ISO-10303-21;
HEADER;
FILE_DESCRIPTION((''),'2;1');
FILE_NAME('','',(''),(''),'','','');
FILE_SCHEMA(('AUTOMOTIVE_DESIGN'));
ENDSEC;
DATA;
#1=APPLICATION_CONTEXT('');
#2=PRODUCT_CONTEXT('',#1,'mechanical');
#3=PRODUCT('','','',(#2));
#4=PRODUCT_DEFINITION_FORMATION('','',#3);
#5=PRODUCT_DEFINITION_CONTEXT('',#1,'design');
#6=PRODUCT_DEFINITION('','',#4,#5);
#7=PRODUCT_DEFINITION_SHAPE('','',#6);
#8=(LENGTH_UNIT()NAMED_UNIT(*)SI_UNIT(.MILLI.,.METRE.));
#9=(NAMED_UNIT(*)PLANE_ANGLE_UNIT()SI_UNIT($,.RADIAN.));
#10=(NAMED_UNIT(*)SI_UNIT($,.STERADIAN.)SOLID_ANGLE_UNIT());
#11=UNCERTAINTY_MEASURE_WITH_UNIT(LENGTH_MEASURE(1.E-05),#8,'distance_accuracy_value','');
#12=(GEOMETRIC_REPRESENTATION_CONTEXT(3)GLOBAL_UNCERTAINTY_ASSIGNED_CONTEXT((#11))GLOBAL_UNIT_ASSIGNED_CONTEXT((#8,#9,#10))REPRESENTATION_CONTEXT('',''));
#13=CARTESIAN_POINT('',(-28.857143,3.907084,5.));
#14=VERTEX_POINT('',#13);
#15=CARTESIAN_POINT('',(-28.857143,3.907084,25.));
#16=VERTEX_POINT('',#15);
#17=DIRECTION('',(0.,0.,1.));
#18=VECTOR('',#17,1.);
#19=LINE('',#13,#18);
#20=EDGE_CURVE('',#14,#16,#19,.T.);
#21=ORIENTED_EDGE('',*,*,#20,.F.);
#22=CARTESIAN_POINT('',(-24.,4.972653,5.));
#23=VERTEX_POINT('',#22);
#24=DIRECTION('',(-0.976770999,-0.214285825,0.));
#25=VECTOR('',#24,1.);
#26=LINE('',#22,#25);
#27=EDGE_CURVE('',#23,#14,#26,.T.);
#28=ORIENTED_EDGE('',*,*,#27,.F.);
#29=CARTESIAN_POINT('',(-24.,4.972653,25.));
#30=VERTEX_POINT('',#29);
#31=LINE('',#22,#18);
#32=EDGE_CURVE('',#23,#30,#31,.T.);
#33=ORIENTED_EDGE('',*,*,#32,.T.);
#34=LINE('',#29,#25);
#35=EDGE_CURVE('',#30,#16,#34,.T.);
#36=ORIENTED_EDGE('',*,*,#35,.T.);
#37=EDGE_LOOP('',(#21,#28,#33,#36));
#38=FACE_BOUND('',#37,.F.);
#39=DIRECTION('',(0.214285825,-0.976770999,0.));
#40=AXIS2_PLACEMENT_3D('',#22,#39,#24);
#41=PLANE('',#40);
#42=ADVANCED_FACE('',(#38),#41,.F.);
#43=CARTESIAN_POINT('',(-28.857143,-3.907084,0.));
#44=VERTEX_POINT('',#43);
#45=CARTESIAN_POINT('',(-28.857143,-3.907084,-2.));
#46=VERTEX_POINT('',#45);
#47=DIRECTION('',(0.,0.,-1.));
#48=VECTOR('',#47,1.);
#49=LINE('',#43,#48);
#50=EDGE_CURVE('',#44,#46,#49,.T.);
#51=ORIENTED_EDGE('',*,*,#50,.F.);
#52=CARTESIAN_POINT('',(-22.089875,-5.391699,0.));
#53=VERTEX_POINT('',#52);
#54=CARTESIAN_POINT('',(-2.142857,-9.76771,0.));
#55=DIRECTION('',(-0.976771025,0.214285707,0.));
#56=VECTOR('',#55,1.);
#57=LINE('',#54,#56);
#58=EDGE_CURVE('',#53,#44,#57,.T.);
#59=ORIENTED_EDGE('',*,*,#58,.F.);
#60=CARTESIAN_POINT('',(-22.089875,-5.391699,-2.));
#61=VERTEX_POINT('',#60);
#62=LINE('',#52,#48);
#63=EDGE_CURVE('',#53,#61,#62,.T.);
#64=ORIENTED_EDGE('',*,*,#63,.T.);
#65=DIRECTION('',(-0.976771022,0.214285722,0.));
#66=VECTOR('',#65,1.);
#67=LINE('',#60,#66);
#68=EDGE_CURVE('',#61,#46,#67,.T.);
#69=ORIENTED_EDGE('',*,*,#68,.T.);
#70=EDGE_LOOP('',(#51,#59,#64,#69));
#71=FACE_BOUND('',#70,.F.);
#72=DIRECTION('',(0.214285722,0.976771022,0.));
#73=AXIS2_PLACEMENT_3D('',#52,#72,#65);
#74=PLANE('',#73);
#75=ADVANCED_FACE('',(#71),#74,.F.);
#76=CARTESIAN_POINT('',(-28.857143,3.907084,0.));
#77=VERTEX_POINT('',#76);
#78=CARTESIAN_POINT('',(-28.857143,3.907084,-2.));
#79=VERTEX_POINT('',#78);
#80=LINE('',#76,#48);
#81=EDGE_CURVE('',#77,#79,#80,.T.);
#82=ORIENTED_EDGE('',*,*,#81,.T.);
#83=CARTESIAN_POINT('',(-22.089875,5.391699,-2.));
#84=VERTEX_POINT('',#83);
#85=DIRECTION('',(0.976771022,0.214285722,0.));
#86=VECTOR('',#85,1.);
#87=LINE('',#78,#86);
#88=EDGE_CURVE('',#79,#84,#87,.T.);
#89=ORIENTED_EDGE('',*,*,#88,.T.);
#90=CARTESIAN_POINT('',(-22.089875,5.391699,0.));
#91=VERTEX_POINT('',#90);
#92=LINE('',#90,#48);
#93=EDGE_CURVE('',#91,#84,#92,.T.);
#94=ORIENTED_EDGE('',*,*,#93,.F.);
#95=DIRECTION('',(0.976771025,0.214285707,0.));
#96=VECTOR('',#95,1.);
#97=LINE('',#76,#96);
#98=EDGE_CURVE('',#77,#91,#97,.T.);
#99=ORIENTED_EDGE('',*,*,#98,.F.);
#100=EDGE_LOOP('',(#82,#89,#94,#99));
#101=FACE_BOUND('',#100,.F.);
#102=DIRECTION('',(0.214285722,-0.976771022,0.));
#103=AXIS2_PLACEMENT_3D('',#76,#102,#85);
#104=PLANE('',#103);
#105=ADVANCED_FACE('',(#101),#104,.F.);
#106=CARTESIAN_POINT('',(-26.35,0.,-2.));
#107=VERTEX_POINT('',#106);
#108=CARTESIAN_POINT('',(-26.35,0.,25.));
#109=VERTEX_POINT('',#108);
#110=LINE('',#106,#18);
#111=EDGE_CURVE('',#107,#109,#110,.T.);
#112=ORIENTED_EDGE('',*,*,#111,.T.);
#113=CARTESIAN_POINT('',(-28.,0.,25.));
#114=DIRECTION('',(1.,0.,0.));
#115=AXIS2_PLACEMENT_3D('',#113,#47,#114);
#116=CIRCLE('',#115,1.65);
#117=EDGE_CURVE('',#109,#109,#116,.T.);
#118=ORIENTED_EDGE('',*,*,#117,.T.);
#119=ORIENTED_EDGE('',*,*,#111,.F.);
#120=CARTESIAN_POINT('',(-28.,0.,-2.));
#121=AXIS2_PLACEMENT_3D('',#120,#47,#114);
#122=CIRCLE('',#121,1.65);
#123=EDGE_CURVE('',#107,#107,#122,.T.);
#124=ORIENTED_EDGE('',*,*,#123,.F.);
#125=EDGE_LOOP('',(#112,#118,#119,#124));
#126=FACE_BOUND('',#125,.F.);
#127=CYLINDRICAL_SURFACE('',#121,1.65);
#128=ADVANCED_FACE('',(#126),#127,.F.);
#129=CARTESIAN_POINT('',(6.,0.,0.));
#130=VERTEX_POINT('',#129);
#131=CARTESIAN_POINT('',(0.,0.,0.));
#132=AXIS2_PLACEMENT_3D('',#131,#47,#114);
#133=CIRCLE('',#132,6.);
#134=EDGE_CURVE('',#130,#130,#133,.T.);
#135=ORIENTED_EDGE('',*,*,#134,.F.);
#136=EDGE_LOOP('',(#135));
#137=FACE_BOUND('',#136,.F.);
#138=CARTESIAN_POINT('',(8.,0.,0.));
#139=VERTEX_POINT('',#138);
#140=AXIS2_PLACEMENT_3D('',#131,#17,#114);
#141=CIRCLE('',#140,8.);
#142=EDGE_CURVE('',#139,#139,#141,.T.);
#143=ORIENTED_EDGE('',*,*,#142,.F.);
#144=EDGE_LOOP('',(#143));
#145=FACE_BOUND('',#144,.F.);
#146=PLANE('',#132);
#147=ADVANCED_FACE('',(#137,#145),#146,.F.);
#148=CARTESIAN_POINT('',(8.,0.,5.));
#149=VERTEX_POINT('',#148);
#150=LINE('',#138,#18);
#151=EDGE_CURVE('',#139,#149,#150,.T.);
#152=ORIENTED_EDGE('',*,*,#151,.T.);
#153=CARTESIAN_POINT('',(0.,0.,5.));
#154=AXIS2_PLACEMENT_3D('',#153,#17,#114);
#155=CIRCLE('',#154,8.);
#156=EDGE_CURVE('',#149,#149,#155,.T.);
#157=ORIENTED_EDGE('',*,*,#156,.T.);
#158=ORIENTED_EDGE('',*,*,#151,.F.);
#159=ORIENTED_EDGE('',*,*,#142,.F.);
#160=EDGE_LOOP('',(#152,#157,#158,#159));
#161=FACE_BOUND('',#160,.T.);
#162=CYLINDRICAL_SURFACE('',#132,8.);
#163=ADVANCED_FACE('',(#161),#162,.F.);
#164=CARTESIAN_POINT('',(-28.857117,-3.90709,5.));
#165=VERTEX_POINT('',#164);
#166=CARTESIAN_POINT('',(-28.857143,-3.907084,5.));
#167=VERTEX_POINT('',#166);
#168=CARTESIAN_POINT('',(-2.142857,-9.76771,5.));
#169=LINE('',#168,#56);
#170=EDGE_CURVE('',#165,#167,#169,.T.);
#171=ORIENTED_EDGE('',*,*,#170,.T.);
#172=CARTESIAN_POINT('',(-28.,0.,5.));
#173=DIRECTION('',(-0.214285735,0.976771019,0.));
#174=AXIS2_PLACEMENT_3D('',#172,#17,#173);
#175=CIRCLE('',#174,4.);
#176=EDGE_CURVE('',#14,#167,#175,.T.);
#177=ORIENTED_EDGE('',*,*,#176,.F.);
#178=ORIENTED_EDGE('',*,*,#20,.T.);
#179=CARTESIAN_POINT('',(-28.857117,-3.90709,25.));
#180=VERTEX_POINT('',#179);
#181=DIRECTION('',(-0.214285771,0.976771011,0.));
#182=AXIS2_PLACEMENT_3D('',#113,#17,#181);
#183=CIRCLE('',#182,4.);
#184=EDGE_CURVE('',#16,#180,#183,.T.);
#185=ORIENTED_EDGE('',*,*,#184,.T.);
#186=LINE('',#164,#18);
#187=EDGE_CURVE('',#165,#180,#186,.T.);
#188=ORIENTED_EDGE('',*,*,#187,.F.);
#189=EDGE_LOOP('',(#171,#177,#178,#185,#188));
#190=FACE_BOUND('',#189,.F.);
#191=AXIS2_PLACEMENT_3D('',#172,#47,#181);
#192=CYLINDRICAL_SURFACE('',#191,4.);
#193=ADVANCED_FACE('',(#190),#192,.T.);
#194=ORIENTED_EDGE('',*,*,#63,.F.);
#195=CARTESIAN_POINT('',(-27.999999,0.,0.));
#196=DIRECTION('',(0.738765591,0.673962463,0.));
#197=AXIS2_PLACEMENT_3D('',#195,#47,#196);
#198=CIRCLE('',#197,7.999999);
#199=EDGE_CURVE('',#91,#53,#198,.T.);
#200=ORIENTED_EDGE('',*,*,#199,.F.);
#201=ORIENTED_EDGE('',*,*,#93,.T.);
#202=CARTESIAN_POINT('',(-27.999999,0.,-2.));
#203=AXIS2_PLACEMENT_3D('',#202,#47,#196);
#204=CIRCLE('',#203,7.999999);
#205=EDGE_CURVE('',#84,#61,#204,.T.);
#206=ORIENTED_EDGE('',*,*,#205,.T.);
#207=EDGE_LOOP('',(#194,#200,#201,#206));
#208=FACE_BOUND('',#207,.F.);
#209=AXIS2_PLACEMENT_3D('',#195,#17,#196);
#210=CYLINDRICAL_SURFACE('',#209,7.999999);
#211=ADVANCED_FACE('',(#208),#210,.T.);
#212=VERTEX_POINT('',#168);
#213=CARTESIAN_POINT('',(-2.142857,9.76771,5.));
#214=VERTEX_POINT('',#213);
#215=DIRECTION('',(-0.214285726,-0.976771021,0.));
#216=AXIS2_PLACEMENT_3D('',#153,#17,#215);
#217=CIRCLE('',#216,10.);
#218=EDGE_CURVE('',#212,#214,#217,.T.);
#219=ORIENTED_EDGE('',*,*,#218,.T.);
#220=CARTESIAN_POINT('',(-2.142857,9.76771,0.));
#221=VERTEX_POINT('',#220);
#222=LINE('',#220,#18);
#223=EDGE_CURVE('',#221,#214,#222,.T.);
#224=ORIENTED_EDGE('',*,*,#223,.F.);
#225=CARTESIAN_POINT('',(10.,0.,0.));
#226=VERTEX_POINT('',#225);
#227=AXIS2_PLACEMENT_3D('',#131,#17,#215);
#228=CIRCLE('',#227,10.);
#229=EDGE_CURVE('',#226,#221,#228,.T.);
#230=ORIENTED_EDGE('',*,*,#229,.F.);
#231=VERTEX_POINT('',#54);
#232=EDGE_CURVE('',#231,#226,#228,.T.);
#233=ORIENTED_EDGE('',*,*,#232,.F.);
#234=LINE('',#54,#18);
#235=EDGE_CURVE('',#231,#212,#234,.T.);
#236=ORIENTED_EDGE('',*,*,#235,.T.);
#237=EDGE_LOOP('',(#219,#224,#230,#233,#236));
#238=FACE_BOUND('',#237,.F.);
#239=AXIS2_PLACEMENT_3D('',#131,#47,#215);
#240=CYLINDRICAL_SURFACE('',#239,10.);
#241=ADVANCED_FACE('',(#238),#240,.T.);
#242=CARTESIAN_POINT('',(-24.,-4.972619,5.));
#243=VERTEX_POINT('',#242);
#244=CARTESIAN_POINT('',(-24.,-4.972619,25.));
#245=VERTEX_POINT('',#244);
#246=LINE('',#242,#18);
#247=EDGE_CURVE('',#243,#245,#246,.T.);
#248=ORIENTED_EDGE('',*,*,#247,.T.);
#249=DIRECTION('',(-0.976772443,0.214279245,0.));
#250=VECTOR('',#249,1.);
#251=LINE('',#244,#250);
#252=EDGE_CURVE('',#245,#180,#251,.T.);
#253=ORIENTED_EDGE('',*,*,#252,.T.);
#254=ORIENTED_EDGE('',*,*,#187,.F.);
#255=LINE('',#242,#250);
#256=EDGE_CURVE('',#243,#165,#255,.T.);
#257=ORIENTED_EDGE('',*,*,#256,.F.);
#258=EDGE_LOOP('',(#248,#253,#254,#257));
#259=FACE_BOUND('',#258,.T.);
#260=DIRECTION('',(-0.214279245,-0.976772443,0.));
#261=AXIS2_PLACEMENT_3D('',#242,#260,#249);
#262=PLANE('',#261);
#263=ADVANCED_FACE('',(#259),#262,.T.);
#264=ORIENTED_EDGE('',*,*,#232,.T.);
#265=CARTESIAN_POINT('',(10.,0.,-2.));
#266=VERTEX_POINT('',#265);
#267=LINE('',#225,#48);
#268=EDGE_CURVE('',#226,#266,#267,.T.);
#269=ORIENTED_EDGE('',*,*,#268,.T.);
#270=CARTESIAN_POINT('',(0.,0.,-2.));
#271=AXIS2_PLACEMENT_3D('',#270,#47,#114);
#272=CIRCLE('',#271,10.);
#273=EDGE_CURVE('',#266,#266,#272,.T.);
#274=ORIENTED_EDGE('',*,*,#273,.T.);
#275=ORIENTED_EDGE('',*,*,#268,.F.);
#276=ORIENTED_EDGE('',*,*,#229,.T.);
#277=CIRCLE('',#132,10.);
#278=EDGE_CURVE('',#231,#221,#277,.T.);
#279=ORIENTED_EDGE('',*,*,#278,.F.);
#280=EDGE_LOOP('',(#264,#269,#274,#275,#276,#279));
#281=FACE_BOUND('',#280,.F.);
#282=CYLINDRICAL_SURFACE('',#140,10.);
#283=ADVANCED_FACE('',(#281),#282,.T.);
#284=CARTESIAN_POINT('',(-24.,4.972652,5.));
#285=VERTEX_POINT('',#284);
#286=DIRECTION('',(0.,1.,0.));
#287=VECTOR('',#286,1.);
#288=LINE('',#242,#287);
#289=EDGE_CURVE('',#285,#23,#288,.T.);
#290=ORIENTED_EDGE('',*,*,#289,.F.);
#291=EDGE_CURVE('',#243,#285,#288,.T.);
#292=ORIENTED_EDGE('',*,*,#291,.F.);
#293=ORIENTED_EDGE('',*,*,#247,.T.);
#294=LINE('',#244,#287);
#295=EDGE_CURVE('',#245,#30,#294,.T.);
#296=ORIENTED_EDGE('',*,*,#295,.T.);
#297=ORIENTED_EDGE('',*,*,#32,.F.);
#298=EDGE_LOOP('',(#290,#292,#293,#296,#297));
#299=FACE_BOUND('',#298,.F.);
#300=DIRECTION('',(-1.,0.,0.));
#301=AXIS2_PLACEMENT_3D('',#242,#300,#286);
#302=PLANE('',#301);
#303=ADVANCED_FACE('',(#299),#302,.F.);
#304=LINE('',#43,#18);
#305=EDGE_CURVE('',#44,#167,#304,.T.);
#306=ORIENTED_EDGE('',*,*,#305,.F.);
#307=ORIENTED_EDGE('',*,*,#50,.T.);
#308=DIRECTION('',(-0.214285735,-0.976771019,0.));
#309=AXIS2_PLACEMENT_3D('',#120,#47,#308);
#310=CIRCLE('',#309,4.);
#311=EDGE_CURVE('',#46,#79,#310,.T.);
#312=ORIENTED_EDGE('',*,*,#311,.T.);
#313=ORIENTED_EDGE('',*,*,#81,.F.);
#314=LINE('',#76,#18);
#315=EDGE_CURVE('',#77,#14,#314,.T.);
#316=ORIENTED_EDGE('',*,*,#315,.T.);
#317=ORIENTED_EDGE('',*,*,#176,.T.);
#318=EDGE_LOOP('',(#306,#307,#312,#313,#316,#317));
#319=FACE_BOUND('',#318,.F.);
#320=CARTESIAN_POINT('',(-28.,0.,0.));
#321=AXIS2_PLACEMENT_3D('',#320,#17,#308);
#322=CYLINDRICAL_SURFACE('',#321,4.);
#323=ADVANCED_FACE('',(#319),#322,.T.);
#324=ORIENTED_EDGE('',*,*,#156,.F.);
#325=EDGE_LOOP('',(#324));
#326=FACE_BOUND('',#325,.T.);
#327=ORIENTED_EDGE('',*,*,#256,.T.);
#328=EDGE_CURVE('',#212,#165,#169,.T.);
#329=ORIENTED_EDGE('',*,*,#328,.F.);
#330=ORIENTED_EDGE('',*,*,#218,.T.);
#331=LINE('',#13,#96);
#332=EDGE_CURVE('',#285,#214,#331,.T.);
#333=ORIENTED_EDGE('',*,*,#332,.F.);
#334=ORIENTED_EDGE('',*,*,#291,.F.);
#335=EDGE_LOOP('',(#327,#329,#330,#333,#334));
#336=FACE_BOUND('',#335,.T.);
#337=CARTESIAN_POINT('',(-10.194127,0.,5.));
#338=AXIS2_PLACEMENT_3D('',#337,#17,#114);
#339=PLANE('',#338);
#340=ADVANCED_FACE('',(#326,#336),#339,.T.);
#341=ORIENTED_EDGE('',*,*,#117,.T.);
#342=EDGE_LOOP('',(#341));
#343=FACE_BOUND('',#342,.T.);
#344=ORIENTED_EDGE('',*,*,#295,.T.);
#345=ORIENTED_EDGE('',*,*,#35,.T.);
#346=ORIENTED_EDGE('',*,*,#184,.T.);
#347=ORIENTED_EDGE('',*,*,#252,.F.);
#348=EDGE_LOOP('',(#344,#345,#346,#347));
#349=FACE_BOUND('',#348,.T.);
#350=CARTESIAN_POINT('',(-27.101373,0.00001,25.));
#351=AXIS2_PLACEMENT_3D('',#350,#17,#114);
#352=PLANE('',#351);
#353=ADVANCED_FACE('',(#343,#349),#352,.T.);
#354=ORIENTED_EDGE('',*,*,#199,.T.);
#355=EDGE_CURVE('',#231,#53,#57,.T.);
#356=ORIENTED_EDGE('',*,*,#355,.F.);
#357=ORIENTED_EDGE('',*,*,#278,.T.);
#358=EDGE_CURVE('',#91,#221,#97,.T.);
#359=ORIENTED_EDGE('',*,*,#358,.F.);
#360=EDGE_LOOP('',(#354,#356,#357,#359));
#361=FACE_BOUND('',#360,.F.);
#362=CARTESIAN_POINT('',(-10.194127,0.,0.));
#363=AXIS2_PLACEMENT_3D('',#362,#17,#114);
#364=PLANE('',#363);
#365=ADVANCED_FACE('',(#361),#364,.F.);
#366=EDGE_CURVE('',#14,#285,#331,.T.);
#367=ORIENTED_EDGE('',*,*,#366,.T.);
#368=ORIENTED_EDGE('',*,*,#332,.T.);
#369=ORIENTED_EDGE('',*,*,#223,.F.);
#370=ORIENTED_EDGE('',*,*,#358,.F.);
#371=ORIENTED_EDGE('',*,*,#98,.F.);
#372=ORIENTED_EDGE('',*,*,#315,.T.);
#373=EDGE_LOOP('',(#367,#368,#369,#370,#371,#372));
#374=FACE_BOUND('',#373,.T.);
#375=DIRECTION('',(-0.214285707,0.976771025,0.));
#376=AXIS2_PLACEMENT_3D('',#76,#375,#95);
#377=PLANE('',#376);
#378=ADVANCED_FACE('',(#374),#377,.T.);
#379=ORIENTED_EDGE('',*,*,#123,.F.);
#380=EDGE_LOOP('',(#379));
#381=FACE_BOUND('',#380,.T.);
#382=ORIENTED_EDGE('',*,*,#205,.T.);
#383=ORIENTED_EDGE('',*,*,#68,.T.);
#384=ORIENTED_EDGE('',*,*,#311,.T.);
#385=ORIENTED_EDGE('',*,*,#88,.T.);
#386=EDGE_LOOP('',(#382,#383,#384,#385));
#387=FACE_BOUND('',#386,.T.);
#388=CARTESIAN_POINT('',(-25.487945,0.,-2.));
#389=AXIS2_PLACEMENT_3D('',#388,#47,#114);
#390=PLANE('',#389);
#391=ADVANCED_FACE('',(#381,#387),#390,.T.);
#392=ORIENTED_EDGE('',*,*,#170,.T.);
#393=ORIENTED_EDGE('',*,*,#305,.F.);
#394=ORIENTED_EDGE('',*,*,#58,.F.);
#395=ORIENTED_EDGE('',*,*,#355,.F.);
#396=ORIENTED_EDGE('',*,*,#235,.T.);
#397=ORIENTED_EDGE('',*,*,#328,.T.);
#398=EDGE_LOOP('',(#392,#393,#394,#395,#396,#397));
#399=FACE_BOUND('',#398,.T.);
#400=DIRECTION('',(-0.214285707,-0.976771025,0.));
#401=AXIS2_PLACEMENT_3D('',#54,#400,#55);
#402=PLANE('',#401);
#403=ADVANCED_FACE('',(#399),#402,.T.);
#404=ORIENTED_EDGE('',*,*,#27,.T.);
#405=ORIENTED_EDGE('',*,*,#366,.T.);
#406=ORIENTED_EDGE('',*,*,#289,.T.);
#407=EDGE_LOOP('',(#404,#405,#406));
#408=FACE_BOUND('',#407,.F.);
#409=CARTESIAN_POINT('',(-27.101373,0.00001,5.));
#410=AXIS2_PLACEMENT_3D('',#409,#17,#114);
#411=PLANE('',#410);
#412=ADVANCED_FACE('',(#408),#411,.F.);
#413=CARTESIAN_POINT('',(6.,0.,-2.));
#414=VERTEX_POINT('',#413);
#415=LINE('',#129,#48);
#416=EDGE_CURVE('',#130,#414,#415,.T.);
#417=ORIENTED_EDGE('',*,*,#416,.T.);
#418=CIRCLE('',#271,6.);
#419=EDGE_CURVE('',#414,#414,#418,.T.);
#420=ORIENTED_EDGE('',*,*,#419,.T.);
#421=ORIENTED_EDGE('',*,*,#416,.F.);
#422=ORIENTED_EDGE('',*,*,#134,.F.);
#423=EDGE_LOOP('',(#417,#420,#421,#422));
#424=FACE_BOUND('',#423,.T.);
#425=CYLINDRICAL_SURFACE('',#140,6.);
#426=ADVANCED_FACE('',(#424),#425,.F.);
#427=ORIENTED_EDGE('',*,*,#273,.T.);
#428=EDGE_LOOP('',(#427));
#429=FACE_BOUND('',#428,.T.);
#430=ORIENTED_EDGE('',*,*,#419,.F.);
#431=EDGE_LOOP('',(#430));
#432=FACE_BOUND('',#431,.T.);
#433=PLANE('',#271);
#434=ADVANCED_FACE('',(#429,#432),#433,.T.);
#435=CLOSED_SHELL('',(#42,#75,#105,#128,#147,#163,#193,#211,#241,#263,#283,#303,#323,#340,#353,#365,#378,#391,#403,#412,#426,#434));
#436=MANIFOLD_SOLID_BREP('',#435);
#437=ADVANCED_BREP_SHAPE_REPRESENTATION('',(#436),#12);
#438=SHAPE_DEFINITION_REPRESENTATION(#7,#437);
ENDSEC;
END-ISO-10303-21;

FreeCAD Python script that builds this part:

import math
import FreeCAD as App
import Part
import Sketcher

V = App.Vector

doc = App.newDocument("Part")
body = doc.addObject("PartDesign::Body", "Body")

sketch1 = doc.addObject("Sketcher::SketchObject", "Sketch")
body.addObject(sketch1)
sketch1.AttachmentSupport = (doc.XY_Plane, [""])
sketch1.MapMode = "FlatFace"
sketch1.addGeometry([
    Part.ArcOfCircle(Part.Circle(V(0, 0, 0), V(0, 0, 1), 10), math.radians(-102.373626), math.radians(102.373626)),
    Part.LineSegment(V(-2.142857, 9.76771, 0), V(-28.857143, 3.907084, 0)),
    Part.ArcOfCircle(Part.Circle(V(-28, 0, 0), V(0, 0, 1), 4), math.radians(102.373626), math.radians(257.626374)),
    Part.LineSegment(V(-28.857143, -3.907084, 0), V(-2.142857, -9.76771, 0)),
    Part.Circle(V(0, 0, 0), V(0, 0, 1), 8),
], False)
sketch1.addConstraint([
    Sketcher.Constraint("Tangent", 0, 2, 1, 1),
    Sketcher.Constraint("Tangent", 1, 2, 2, 1),
    Sketcher.Constraint("Tangent", 2, 2, 3, 1),
    Sketcher.Constraint("Tangent", 3, 2, 0, 1),
    Sketcher.Constraint("Coincident", 0, 3, -1, 1),
    Sketcher.Constraint("Coincident", 4, 3, -1, 1),
    Sketcher.Constraint("PointOnObject", 2, 3, -1),
    Sketcher.Constraint("Diameter", 4, 16.0),
    Sketcher.Constraint("Radius", 0, 10.0),
    Sketcher.Constraint("Radius", 2, 4.0),
    Sketcher.Constraint("DistanceX", 2, 3, -1, 1, 28.0),
])
pad1 = doc.addObject("PartDesign::Pad", "Pad")
body.addObject(pad1)
pad1.Profile = sketch1
pad1.Length = 5

sketch2 = doc.addObject("Sketcher::SketchObject", "Sketch001")
body.addObject(sketch2)
sketch2.AttachmentSupport = (doc.XY_Plane, [""])
sketch2.MapMode = "FlatFace"
sketch2.AttachmentOffset = App.Placement(V(0, 0, 5), App.Rotation())
sketch2.addGeometry([
    Part.ArcOfCircle(Part.Circle(V(-28, 0, 0), V(0, 0, 1), 4), math.radians(102.373628), math.radians(257.626753)),
    Part.LineSegment(V(-28.857117, -3.90709, 0), V(-24, -4.972619, 0)),
    Part.LineSegment(V(-24, -4.972619, 0), V(-24, 4.972653, 0)),
    Part.LineSegment(V(-24, 4.972653, 0), V(-28.857143, 3.907084, 0)),
], False)
sketch2.addConstraint([
    Sketcher.Constraint("Tangent", 0, 2, 1, 1),
    Sketcher.Constraint("Coincident", 1, 2, 2, 1),
    Sketcher.Constraint("Coincident", 2, 2, 3, 1),
    Sketcher.Constraint("Tangent", 3, 2, 0, 1),
    Sketcher.Constraint("Vertical", 2),
    Sketcher.Constraint("PointOnObject", 0, 3, -1),
    Sketcher.Constraint("Radius", 0, 4.0),
    Sketcher.Constraint("DistanceX", 0, 3, -1, 1, 28.0),
    Sketcher.Constraint("DistanceX", 1, 2, -1, 1, 24.0),
    Sketcher.Constraint("DistanceY", 2, 1, 2, 2, 9.945272),
    Sketcher.Constraint("Distance", 1, 4.972619),
])
pad2 = doc.addObject("PartDesign::Pad", "Pad001")
body.addObject(pad2)
pad2.Profile = sketch2
pad2.Length = 20

sketch3 = doc.addObject("Sketcher::SketchObject", "Sketch002")
body.addObject(sketch3)
sketch3.AttachmentSupport = (doc.XY_Plane, [""])
sketch3.MapMode = "FlatFace"
sketch3.addGeometry([
    Part.Circle(V(0, 0, 0), V(0, 0, 1), 10),
    Part.Circle(V(0, 0, 0), V(0, 0, 1), 6),
], False)
sketch3.addConstraint([
    Sketcher.Constraint("Coincident", 0, 3, -1, 1),
    Sketcher.Constraint("Coincident", 1, 3, -1, 1),
    Sketcher.Constraint("Diameter", 0, 20.0),
    Sketcher.Constraint("Diameter", 1, 12.0),
])
pad3 = doc.addObject("PartDesign::Pad", "Pad002")
body.addObject(pad3)
pad3.Profile = sketch3
pad3.Length = 2
pad3.Reversed = True

sketch4 = doc.addObject("Sketcher::SketchObject", "Sketch003")
body.addObject(sketch4)
sketch4.AttachmentSupport = (doc.XY_Plane, [""])
sketch4.MapMode = "FlatFace"
sketch4.addGeometry([
    Part.ArcOfCircle(Part.Circle(V(-28, 0, 0), V(0, 0, 1), 4), math.radians(102.373626), math.radians(257.626374)),
    Part.LineSegment(V(-28.857143, 3.907084, 0), V(-22.089875, 5.391699, 0)),
    Part.ArcOfCircle(Part.Circle(V(-27.999999, 0, 0), V(0, 0, 1), 7.999999), math.radians(-42.373631), math.radians(42.373631)),
    Part.LineSegment(V(-22.089875, -5.391699, 0), V(-28.857143, -3.907084, 0)),
], False)
sketch4.addConstraint([
    Sketcher.Constraint("Tangent", 0, 1, 1, 1),
    Sketcher.Constraint("Coincident", 1, 2, 2, 2),
    Sketcher.Constraint("Coincident", 2, 1, 3, 1),
    Sketcher.Constraint("Tangent", 3, 2, 0, 2),
    Sketcher.Constraint("Coincident", 2, 3, 0, 3),
    Sketcher.Constraint("Symmetric", 1, 2, 2, 1, -1),
    Sketcher.Constraint("Radius", 0, 4.0),
    Sketcher.Constraint("Radius", 2, 7.999999),
    Sketcher.Constraint("DistanceX", 0, 3, -1, 1, 28.0),
    Sketcher.Constraint("DistanceY", -1, 1, 1, 2, 5.391699),
])
pad4 = doc.addObject("PartDesign::Pad", "Pad003")
body.addObject(pad4)
pad4.Profile = sketch4
pad4.Length = 2
pad4.Reversed = True

sketch5 = doc.addObject("Sketcher::SketchObject", "Sketch004")
body.addObject(sketch5)
sketch5.AttachmentSupport = (doc.XY_Plane, [""])
sketch5.MapMode = "FlatFace"
sketch5.AttachmentOffset = App.Placement(V(0, 0, -2), App.Rotation())
sketch5.addGeometry(Part.Circle(V(-28, 0, 0), V(0, 0, 1), 1.65), False)
sketch5.addConstraint([
    Sketcher.Constraint("PointOnObject", 0, 3, -1),
    Sketcher.Constraint("Diameter", 0, 3.3),
    Sketcher.Constraint("DistanceX", 0, 3, -1, 1, 28.0),
])
pocket1 = doc.addObject("PartDesign::Pocket", "Pocket")
body.addObject(pocket1)
pocket1.Profile = sketch5
pocket1.Type = "ThroughAll"
pocket1.Reversed = True

doc.recompute()
